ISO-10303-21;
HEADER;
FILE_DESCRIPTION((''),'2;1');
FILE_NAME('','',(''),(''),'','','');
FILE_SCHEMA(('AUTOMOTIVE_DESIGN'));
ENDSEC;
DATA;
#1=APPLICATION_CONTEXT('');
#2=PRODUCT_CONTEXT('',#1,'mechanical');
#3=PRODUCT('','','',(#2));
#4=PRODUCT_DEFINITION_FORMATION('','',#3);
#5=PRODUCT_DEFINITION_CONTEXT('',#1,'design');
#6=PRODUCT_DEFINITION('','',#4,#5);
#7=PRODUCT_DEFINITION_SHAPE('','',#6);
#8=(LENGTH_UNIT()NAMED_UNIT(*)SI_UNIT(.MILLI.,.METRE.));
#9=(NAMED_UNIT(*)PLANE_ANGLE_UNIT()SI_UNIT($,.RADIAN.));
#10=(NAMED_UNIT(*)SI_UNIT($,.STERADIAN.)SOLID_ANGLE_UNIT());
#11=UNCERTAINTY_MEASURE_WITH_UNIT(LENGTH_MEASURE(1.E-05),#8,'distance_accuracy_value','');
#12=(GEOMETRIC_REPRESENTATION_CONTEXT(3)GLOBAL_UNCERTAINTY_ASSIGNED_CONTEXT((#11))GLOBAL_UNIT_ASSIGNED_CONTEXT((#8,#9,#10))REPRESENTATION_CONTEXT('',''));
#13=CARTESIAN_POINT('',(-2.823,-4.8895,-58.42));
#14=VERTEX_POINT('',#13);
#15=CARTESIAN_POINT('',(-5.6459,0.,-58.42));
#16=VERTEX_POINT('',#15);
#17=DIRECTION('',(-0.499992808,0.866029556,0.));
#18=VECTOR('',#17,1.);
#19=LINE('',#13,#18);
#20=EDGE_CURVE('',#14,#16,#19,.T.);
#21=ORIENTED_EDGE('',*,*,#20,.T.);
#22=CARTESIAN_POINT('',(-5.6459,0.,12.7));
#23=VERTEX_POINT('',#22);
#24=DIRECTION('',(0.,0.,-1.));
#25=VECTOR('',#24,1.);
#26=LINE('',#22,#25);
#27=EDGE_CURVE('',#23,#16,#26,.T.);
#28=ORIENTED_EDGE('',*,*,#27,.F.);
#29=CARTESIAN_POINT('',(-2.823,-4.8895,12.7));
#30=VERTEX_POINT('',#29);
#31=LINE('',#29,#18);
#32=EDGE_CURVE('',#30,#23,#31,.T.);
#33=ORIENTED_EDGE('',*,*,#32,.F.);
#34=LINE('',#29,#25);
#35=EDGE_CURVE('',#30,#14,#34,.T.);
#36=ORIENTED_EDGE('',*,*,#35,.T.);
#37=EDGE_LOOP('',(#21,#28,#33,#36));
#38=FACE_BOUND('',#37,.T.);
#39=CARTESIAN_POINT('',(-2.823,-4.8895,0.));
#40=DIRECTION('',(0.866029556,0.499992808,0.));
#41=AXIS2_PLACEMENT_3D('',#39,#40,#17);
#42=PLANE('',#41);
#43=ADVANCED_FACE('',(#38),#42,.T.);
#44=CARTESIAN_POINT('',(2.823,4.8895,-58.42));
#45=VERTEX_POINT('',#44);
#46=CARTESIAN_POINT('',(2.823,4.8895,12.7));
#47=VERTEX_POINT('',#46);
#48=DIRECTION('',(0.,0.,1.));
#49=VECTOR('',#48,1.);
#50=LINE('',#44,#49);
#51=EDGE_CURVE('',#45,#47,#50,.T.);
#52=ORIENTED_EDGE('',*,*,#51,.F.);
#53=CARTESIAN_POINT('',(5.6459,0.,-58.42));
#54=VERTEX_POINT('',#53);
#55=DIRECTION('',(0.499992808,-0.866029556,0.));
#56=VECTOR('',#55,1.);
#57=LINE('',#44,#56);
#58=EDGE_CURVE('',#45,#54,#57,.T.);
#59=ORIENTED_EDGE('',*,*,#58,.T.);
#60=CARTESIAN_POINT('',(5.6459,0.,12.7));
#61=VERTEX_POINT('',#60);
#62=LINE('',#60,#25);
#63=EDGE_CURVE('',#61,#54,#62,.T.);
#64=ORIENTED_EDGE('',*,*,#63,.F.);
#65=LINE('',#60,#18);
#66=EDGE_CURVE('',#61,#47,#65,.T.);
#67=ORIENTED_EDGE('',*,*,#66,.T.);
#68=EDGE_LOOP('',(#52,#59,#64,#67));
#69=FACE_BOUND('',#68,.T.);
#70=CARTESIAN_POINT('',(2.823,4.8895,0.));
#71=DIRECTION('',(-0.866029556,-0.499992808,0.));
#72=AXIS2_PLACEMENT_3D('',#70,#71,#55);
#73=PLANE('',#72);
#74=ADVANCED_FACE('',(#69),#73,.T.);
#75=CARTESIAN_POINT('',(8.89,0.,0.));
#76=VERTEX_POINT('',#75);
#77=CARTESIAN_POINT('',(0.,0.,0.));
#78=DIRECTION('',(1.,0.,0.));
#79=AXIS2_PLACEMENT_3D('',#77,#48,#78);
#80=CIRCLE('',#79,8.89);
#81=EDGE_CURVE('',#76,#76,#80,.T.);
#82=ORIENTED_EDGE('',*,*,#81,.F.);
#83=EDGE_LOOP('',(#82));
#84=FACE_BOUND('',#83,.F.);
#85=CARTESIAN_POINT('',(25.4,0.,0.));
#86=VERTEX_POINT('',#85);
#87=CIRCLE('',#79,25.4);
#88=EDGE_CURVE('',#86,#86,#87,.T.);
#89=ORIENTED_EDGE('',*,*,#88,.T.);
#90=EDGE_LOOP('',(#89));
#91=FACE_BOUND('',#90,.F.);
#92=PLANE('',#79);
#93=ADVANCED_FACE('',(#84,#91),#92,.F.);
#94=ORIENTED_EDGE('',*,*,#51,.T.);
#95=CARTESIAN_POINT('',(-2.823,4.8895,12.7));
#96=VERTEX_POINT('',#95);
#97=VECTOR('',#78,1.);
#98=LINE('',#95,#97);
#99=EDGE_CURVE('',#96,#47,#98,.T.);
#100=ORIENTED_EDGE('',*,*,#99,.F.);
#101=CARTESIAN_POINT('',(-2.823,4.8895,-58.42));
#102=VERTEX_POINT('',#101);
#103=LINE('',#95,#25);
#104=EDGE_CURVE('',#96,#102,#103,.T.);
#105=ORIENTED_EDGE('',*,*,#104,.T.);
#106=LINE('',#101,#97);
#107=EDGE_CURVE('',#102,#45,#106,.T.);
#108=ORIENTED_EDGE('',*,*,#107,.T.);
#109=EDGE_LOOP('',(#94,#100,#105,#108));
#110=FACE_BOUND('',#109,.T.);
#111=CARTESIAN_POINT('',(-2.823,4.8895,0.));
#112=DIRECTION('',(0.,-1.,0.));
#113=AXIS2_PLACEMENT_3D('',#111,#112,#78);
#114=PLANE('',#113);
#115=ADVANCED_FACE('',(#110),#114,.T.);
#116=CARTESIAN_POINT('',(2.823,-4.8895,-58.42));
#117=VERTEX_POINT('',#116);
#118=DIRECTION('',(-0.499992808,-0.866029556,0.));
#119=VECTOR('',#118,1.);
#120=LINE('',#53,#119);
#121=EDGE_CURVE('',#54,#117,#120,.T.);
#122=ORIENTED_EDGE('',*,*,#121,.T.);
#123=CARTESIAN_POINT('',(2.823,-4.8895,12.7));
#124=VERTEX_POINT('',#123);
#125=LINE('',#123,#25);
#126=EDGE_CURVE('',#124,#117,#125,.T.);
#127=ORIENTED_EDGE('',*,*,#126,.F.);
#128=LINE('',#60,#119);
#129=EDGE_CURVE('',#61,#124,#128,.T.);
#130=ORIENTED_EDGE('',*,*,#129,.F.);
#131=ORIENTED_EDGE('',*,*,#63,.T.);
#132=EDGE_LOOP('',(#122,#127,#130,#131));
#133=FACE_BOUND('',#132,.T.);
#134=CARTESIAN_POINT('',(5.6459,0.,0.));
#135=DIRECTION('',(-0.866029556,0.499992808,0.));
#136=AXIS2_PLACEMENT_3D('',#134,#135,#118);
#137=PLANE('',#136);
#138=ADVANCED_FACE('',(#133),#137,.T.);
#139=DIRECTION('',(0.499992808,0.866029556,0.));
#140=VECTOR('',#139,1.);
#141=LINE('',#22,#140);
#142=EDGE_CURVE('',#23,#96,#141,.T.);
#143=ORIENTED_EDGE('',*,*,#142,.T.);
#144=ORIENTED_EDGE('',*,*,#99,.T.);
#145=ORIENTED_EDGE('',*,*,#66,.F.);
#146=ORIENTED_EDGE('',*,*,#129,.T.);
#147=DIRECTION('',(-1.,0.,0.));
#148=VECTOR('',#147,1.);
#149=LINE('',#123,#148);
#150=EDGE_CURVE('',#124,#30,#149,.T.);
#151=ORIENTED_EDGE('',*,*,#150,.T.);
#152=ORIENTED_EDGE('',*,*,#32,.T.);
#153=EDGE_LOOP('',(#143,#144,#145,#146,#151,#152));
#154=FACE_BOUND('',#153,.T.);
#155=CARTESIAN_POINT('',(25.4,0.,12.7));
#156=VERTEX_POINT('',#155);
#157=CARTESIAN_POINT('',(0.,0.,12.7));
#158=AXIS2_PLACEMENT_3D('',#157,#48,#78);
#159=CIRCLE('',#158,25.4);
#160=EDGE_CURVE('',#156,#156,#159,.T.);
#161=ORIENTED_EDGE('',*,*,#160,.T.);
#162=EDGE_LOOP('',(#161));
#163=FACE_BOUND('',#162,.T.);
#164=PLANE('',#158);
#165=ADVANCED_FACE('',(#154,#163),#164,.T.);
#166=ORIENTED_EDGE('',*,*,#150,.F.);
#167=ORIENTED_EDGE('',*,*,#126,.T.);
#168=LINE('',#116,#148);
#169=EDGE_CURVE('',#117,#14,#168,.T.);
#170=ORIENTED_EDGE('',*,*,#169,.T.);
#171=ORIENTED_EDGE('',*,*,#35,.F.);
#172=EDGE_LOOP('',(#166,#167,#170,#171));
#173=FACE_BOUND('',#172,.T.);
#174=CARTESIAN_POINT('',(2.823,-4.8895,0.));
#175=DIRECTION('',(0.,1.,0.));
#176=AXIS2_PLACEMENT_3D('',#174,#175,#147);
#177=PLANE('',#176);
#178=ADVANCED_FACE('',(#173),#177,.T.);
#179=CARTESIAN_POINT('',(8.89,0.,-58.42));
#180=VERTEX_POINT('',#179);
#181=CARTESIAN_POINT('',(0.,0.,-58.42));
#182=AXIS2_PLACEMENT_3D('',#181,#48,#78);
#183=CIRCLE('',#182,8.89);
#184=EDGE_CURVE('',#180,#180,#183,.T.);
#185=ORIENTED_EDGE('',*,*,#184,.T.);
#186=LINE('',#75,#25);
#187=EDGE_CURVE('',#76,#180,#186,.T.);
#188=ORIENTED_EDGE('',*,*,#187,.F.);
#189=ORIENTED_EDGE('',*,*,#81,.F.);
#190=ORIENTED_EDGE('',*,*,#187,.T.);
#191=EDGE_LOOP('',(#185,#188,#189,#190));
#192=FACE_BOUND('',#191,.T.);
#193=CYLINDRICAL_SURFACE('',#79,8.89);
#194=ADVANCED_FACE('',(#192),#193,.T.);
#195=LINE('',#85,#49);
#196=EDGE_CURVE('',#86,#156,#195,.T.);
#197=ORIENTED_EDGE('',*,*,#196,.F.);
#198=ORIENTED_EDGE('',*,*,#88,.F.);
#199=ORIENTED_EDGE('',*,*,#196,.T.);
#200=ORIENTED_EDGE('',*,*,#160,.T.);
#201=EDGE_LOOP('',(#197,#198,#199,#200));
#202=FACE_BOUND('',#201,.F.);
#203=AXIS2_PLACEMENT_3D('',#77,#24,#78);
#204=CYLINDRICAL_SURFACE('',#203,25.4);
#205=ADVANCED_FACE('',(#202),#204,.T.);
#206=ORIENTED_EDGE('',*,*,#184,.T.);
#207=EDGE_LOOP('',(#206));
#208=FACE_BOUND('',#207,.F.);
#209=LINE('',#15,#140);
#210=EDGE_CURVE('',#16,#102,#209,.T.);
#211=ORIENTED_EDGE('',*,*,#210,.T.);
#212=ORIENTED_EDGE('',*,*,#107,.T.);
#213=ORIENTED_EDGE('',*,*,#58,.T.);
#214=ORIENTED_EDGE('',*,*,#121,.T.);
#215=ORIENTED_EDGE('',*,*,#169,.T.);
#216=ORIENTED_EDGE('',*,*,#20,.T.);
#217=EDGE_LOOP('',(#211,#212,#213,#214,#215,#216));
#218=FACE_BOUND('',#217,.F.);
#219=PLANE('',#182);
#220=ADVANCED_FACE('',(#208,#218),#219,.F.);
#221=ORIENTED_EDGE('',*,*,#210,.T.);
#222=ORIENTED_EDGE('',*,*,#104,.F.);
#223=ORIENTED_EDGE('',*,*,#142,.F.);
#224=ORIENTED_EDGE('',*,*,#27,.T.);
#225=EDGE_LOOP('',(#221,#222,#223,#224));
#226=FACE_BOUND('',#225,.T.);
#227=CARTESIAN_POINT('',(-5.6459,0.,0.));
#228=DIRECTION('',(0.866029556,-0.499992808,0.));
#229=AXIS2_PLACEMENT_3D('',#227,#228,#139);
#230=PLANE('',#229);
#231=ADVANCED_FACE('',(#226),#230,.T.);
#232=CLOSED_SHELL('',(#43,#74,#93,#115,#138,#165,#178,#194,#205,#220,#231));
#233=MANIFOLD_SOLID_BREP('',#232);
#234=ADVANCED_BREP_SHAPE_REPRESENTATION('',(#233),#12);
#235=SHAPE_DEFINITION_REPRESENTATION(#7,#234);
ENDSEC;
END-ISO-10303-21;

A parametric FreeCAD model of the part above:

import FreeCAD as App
import Part
import Sketcher

V = App.Vector
Q = App.Units.Quantity

doc = App.newDocument("Part")
body = doc.addObject("PartDesign::Body", "Body")

# Sketch on XY plane
sketch1 = body.newObject("Sketcher::SketchObject", "Sketch")
sketch1.AttachmentSupport = (doc.getObject("XY_Plane"), [""])
sketch1.MapMode = "FlatFace"
sketch1.addGeometry(Part.Circle(V(0, 0, 0), V(0, 0, 1), 9), False)
sketch1.addGeometry(Part.LineSegment(V(-3, 5, 0), V(3, 5, 0)), False)
sketch1.addGeometry(Part.LineSegment(V(3, 5, 0), V(6, 0, 0)), False)
sketch1.addGeometry(Part.LineSegment(V(6, 0, 0), V(3, -5, 0)), False)
sketch1.addGeometry(Part.LineSegment(V(3, -5, 0), V(-3, -5, 0)), False)
sketch1.addGeometry(Part.LineSegment(V(-3, -5, 0), V(-6, 0, 0)), False)
sketch1.addGeometry(Part.LineSegment(V(-6, 0, 0), V(-3, 5, 0)), False)
sketch1.addConstraint(Sketcher.Constraint("Coincident", 1, 2, 2, 1))
sketch1.addConstraint(Sketcher.Constraint("Coincident", 2, 2, 3, 1))
sketch1.addConstraint(Sketcher.Constraint("Coincident", 3, 2, 4, 1))
sketch1.addConstraint(Sketcher.Constraint("Coincident", 4, 2, 5, 1))
sketch1.addConstraint(Sketcher.Constraint("Coincident", 5, 2, 6, 1))
sketch1.addConstraint(Sketcher.Constraint("Coincident", 6, 2, 1, 1))
sketch1.addConstraint(Sketcher.Constraint("Horizontal", 1))
sketch1.addConstraint(Sketcher.Constraint("Horizontal", 4))
sketch1.addConstraint(Sketcher.Constraint("Coincident", 0, 3, -1, 1))
sketch1.addConstraint(Sketcher.Constraint("Symmetric", 1, 2, 4, 2, -1, 1))
sketch1.addConstraint(Sketcher.Constraint("Symmetric", 2, 2, 5, 2, -1, 1))
sketch1.addConstraint(Sketcher.Constraint("PointOnObject", 2, 2, -1))
sketch1.addConstraint(Sketcher.Constraint("Parallel", 3, 6))
sketch1.addConstraint(Sketcher.Constraint("Vertical", 1, 2, 3, 2))
sketch1.addConstraint(Sketcher.Constraint("Diameter", 0, Q("0.7 in")))
sketch1.addConstraint(Sketcher.Constraint("Angle", 2, Q("-60.0005 deg")))
sketch1.addConstraint(Sketcher.Constraint("DistanceY", 3, 2, 1, 2, Q("0.385 in")))
sketch1.addConstraint(Sketcher.Constraint("DistanceX", 1, 1, 1, 2, Q("5.646 mm")))
pad1 = body.newObject("PartDesign::Pad", "Pad")
pad1.Profile = sketch1
pad1.Length = Q("2.3 in")
pad1.Reversed = True

# Sketch on XY plane
sketch2 = body.newObject("Sketcher::SketchObject", "Sketch001")
sketch2.AttachmentSupport = (doc.getObject("XY_Plane"), [""])
sketch2.MapMode = "FlatFace"
sketch2.addGeometry(Part.Circle(V(0, 0, 0), V(0, 0, 1), 25), False)
sketch2.addGeometry(Part.LineSegment(V(3, 5, 0), V(6, 0, 0)), False)
sketch2.addGeometry(Part.LineSegment(V(6, 0, 0), V(3, -5, 0)), False)
sketch2.addGeometry(Part.LineSegment(V(3, -5, 0), V(-3, -5, 0)), False)
sketch2.addGeometry(Part.LineSegment(V(-3, -5, 0), V(-6, 0, 0)), False)
sketch2.addGeometry(Part.LineSegment(V(-6, 0, 0), V(-3, 5, 0)), False)
sketch2.addGeometry(Part.LineSegment(V(-3, 5, 0), V(3, 5, 0)), False)
sketch2.addConstraint(Sketcher.Constraint("Coincident", 1, 2, 2, 1))
sketch2.addConstraint(Sketcher.Constraint("Coincident", 2, 2, 3, 1))
sketch2.addConstraint(Sketcher.Constraint("Coincident", 3, 2, 4, 1))
sketch2.addConstraint(Sketcher.Constraint("Coincident", 4, 2, 5, 1))
sketch2.addConstraint(Sketcher.Constraint("Coincident", 5, 2, 6, 1))
sketch2.addConstraint(Sketcher.Constraint("Coincident", 6, 2, 1, 1))
sketch2.addConstraint(Sketcher.Constraint("Horizontal", 3))
sketch2.addConstraint(Sketcher.Constraint("Horizontal", 6))
sketch2.addConstraint(Sketcher.Constraint("Coincident", 0, 3, -1, 1))
sketch2.addConstraint(Sketcher.Constraint("Symmetric", 1, 2, 4, 2, -1, 1))
sketch2.addConstraint(Sketcher.Constraint("Symmetric", 2, 2, 5, 2, -1, 1))
sketch2.addConstraint(Sketcher.Constraint("PointOnObject", 1, 2, -1))
sketch2.addConstraint(Sketcher.Constraint("Parallel", 1, 4))
sketch2.addConstraint(Sketcher.Constraint("Vertical", 3, 2, 5, 2))
sketch2.addConstraint(Sketcher.Constraint("Diameter", 0, Q("2 in")))
sketch2.addConstraint(Sketcher.Constraint("Angle", 1, Q("-60.0005 deg")))
sketch2.addConstraint(Sketcher.Constraint("DistanceY", 3, 2, 5, 2, Q("0.385 in")))
sketch2.addConstraint(Sketcher.Constraint("DistanceX", 3, 2, 3, 1, Q("5.646 mm")))
pad2 = body.newObject("PartDesign::Pad", "Pad001")
pad2.Profile = sketch2
pad2.Length = Q("0.5 in")

doc.recompute()
